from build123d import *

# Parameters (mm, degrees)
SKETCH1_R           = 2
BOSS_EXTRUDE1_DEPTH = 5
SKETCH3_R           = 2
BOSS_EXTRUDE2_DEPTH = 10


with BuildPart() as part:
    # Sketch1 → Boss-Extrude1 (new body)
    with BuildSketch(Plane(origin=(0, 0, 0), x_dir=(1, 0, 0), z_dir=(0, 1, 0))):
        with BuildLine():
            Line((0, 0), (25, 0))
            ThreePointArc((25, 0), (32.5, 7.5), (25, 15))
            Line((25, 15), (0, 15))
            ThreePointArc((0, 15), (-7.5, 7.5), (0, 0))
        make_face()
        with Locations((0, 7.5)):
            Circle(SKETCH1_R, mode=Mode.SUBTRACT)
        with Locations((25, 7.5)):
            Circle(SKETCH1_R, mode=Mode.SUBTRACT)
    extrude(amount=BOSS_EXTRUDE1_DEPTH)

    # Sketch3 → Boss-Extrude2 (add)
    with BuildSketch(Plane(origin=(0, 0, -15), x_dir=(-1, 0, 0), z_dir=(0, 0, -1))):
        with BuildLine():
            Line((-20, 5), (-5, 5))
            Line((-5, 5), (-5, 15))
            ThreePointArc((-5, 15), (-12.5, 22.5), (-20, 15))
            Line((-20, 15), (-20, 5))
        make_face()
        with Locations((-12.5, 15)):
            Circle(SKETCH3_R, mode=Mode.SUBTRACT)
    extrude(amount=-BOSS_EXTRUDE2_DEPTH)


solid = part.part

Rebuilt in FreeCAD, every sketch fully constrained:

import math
import FreeCAD as App
import Part
import Sketcher
from FreeCAD import Vector
Q = App.Units.Quantity

doc = App.newDocument("Part")
params = doc.addObject("Spreadsheet::Sheet", "Params")
for row, (alias, value) in enumerate([
    ("sketch1_diameter", "4 mm"),
    ("sketch1_radius", "7.5 mm"),
    ("sketch1_width", "25 mm"),
    ("pad1_length", "5 mm"),
    ("sketch2_diameter", "4 mm"),
    ("sketch2_radius", "7.5 mm"),
    ("sketch2_height", "10 mm"),
    ("pad2_length", "10 mm"),
], start=1):
    params.set(f"A{row}", alias)
    params.set(f"B{row}", "=" + value)
    params.setAlias(f"B{row}", alias)

body = doc.addObject("PartDesign::Body", "Body")

sketch1 = body.newObject("Sketcher::SketchObject", "Sketch")
sketch1.AttachmentSupport = (doc.getObject("XZ_Plane"), [""])
sketch1.MapMode = "FlatFace"
sketch1.addGeometry([
    Part.LineSegment(Vector(0, 0, 0), Vector(25, 0, 0)),
    Part.ArcOfCircle(Part.Circle(Vector(25, -7.5, 0), Vector(0, 0, 1), 7.5), math.radians(-90), math.radians(90)),
    Part.LineSegment(Vector(25, -15, 0), Vector(0, -15, 0)),
    Part.ArcOfCircle(Part.Circle(Vector(0, -7.5, 0), Vector(0, 0, 1), 7.5), math.radians(90), math.radians(270)),
    Part.Circle(Vector(0, -7.5, 0), Vector(0, 0, 1), 2),
    Part.Circle(Vector(25, -7.5, 0), Vector(0, 0, 1), 2),
], False)
sketch1.addConstraint([
    Sketcher.Constraint("Tangent", 0, 2, 1, 2),
    Sketcher.Constraint("Tangent", 1, 1, 2, 1),
    Sketcher.Constraint("Tangent", 2, 2, 3, 2),
    Sketcher.Constraint("Tangent", 3, 1, 0, 1),
    Sketcher.Constraint("Horizontal", 0),
    Sketcher.Constraint("Horizontal", 2),
    Sketcher.Constraint("Coincident", 3, 1, -1, 1),
    Sketcher.Constraint("Coincident", 4, 3, 3, 3),
    Sketcher.Constraint("Coincident", 5, 3, 1, 3),
    Sketcher.Constraint("Equal", 4, 5),
    Sketcher.Constraint("Diameter", 4, Q("4 mm")),
    Sketcher.Constraint("Radius", 1, Q("7.5 mm")),
    Sketcher.Constraint("DistanceX", 0, 1, 0, 2, Q("25 mm")),
])
sketch1.setExpression("Constraints[10]", "Params.sketch1_diameter")
sketch1.setExpression("Constraints[11]", "Params.sketch1_radius")
sketch1.setExpression("Constraints[12]", "Params.sketch1_width")
pad1 = body.newObject("PartDesign::Pad", "Pad")
pad1.Profile = sketch1
pad1.setExpression("Length", "Params.pad1_length")
pad1.Reversed = True

sketch2 = body.newObject("Sketcher::SketchObject", "Sketch001")
sketch2.AttachmentSupport = (doc.getObject("XY_Plane"), [""])
sketch2.MapMode = "FlatFace"
sketch2.AttachmentOffset = App.Placement(Vector(0, 0, -15), App.Rotation())
sketch2.addGeometry([
    Part.LineSegment(Vector(20, 5, 0), Vector(5, 5, 0)),
    Part.LineSegment(Vector(5, 5, 0), Vector(5, 15, 0)),
    Part.ArcOfCircle(Part.Circle(Vector(12.5, 15, 0), Vector(0, 0, 1), 7.5), math.radians(0), math.radians(180)),
    Part.LineSegment(Vector(20, 15, 0), Vector(20, 5, 0)),
    Part.Circle(Vector(12.5, 15, 0), Vector(0, 0, 1), 2),
], False)
sketch2.addConstraint([
    Sketcher.Constraint("Coincident", 0, 2, 1, 1),
    Sketcher.Constraint("Tangent", 1, 2, 2, 2),
    Sketcher.Constraint("Tangent", 2, 1, 3, 1),
    Sketcher.Constraint("Coincident", 3, 2, 0, 1),
    Sketcher.Constraint("Horizontal", 0),
    Sketcher.Constraint("Vertical", 1),
    Sketcher.Constraint("Vertical", 3),
    Sketcher.Constraint("Coincident", 4, 3, 2, 3),
    Sketcher.Constraint("Diameter", 4, Q("4 mm")),
    Sketcher.Constraint("Radius", 2, Q("7.5 mm")),
    Sketcher.Constraint("DistanceY", 1, 1, 1, 2, Q("10 mm")),
    Sketcher.Constraint("DistanceY", -1, 1, 2, 3, Q("15 mm")),
    Sketcher.Constraint("DistanceX", -1, 1, 0, 2, Q("5 mm")),
])
sketch2.setExpression("Constraints[8]", "Params.sketch2_diameter")
sketch2.setExpression("Constraints[9]", "Params.sketch2_radius")
sketch2.setExpression("Constraints[10]", "Params.sketch2_height")
pad2 = body.newObject("PartDesign::Pad", "Pad001")
pad2.Profile = sketch2
pad2.setExpression("Length", "Params.pad2_length")

doc.recompute()
